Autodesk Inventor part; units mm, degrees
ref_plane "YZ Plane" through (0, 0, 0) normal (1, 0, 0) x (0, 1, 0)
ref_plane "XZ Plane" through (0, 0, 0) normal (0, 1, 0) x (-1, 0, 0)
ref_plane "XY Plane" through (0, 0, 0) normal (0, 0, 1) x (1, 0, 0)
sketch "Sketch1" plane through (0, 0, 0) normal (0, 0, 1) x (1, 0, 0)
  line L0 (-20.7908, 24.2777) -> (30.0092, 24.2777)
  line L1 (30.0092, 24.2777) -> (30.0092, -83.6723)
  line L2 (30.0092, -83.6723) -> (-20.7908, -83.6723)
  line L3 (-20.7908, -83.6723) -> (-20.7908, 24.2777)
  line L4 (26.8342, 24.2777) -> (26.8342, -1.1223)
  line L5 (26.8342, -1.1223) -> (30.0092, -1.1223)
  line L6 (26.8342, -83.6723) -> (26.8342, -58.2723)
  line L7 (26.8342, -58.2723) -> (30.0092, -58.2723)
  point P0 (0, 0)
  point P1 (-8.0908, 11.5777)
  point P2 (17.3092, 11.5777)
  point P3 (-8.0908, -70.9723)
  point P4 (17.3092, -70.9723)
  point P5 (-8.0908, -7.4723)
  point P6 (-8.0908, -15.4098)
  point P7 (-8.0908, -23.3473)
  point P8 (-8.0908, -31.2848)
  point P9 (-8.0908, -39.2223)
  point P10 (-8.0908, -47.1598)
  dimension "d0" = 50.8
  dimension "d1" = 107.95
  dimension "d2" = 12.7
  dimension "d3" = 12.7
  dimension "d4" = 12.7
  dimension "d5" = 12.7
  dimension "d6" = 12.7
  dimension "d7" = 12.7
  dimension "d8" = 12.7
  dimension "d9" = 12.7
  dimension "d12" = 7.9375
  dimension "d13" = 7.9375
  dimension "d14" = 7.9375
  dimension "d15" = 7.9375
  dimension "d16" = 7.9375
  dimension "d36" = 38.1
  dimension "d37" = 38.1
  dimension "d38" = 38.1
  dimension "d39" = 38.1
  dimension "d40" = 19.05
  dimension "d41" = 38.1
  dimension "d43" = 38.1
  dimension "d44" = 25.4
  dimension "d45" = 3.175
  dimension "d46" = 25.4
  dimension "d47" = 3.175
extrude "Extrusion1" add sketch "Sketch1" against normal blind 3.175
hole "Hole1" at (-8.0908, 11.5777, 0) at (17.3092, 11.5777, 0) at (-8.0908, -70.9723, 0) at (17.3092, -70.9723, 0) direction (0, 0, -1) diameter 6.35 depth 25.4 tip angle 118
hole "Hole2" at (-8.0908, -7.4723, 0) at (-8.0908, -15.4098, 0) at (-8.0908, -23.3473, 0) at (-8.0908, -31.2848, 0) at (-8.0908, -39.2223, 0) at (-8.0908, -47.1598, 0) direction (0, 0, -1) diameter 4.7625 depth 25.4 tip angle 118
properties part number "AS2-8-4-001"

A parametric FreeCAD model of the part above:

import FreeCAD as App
import Part
import Sketcher

V = App.Vector
Q = App.Units.Quantity

doc = App.newDocument("Part")
body = doc.addObject("PartDesign::Body", "Body")

# Sketch on XY plane
sketch1 = doc.addObject("Sketcher::SketchObject", "Sketch")
body.addObject(sketch1)
sketch1.AttachmentSupport = (doc.XY_Plane, [""])
sketch1.MapMode = "FlatFace"
sketch1.addGeometry(Part.LineSegment(V(-21, 24, 0), V(-21, -84, 0)), False)
sketch1.addGeometry(Part.LineSegment(V(-21, -84, 0), V(30, -84, 0)), False)
sketch1.addGeometry(Part.LineSegment(V(30, -84, 0), V(30, 24, 0)), False)
sketch1.addGeometry(Part.LineSegment(V(30, 24, 0), V(-21, 24, 0)), False)
sketch1.addConstraint(Sketcher.Constraint("Coincident", 0, 2, 1, 1))
sketch1.addConstraint(Sketcher.Constraint("Coincident", 1, 2, 2, 1))
sketch1.addConstraint(Sketcher.Constraint("Coincident", 2, 2, 3, 1))
sketch1.addConstraint(Sketcher.Constraint("Coincident", 3, 2, 0, 1))
sketch1.addConstraint(Sketcher.Constraint("Vertical", 0))
sketch1.addConstraint(Sketcher.Constraint("Horizontal", 1))
sketch1.addConstraint(Sketcher.Constraint("Vertical", 2))
sketch1.addConstraint(Sketcher.Constraint("Horizontal", 3))
sketch1.addConstraint(Sketcher.Constraint("DistanceX", 1, 1, 1, 2, Q("2 in")))
sketch1.addConstraint(Sketcher.Constraint("DistanceY", 0, 2, 0, 1, Q("4.25 in")))
sketch1.addConstraint(Sketcher.Constraint("DistanceX", 0, 2, -1, 1, Q("20.7908 mm")))
sketch1.addConstraint(Sketcher.Constraint("DistanceY", 0, 2, -1, 1, Q("83.6723 mm")))
pad1 = doc.addObject("PartDesign::Pad", "Pad")
body.addObject(pad1)
pad1.Profile = sketch1
pad1.Length = Q("0.125 in")
pad1.Reversed = True

# Sketch on XY plane
sketch2 = doc.addObject("Sketcher::SketchObject", "Sketch001")
body.addObject(sketch2)
sketch2.AttachmentSupport = (doc.XY_Plane, [""])
sketch2.MapMode = "FlatFace"
sketch2.addGeometry(Part.Circle(V(-8.1, 11.6, 0), V(0, 0, 1), 3.2), False)
sketch2.addGeometry(Part.Circle(V(17.3, 11.6, 0), V(0, 0, 1), 3.2), False)
sketch2.addGeometry(Part.Circle(V(-8.1, -71, 0), V(0, 0, 1), 3.2), False)
sketch2.addGeometry(Part.Circle(V(17.3, -71, 0), V(0, 0, 1), 3.2), False)
sketch2.addConstraint(Sketcher.Constraint("Equal", 0, 1))
sketch2.addConstraint(Sketcher.Constraint("Equal", 1, 2))
sketch2.addConstraint(Sketcher.Constraint("Equal", 2, 3))
sketch2.addConstraint(Sketcher.Constraint("Horizontal", 0, 3, 1, 3))
sketch2.addConstraint(Sketcher.Constraint("Horizontal", 2, 3, 3, 3))
sketch2.addConstraint(Sketcher.Constraint("Vertical", 0, 3, 2, 3))
sketch2.addConstraint(Sketcher.Constraint("Vertical", 1, 3, 3, 3))
sketch2.addConstraint(Sketcher.Constraint("Diameter", 0, Q("0.25 in")))
sketch2.addConstraint(Sketcher.Constraint("DistanceX", 0, 3, 1, 3, Q("1 in")))
sketch2.addConstraint(Sketcher.Constraint("DistanceY", 2, 3, 0, 3, Q("3.25 in")))
sketch2.addConstraint(Sketcher.Constraint("DistanceX", 0, 3, -1, 1, Q("8.0908 mm")))
sketch2.addConstraint(Sketcher.Constraint("DistanceY", -1, 1, 0, 3, Q("11.5777 mm")))
doc.recompute()
hole = doc.addObject("PartDesign::Hole", "Hole")
body.addObject(hole)
hole.Profile = sketch2
hole.ThreadType = "None"
hole.Diameter = Q("0.25 in")
hole.DepthType = "Dimension"
hole.Depth = Q("1 in")
hole.DrillPoint = "Angled"
hole.DrillPointAngle = 118

# Sketch on XY plane
sketch3 = doc.addObject("Sketcher::SketchObject", "Sketch002")
body.addObject(sketch3)
sketch3.AttachmentSupport = (doc.XY_Plane, [""])
sketch3.MapMode = "FlatFace"
sketch3.addGeometry(Part.Circle(V(-8.1, -7.5, 0), V(0, 0, 1), 2.4), False)
sketch3.addGeometry(Part.Circle(V(-8.1, -15.4, 0), V(0, 0, 1), 2.4), False)
sketch3.addGeometry(Part.Circle(V(-8.1, -23.3, 0), V(0, 0, 1), 2.4), False)
sketch3.addGeometry(Part.Circle(V(-8.1, -31.3, 0), V(0, 0, 1), 2.4), False)
sketch3.addGeometry(Part.Circle(V(-8.1, -39.2, 0), V(0, 0, 1), 2.4), False)
sketch3.addGeometry(Part.Circle(V(-8.1, -47.2, 0), V(0, 0, 1), 2.4), False)
sketch3.addConstraint(Sketcher.Constraint("Equal", 0, 1))
sketch3.addConstraint(Sketcher.Constraint("Equal", 1, 2))
sketch3.addConstraint(Sketcher.Constraint("Equal", 2, 3))
sketch3.addConstraint(Sketcher.Constraint("Equal", 3, 4))
sketch3.addConstraint(Sketcher.Constraint("Equal", 4, 5))
sketch3.addConstraint(Sketcher.Constraint("Vertical", 0, 3, 1, 3))
sketch3.addConstraint(Sketcher.Constraint("Vertical", 1, 3, 2, 3))
sketch3.addConstraint(Sketcher.Constraint("Vertical", 2, 3, 3, 3))
sketch3.addConstraint(Sketcher.Constraint("Vertical", 3, 3, 4, 3))
sketch3.addConstraint(Sketcher.Constraint("Vertical", 4, 3, 5, 3))
sketch3.addConstraint(Sketcher.Constraint("Diameter", 0, Q("0.1875 in")))
sketch3.addConstraint(Sketcher.Constraint("DistanceY", 4, 3, 0, 3, Q("1.25 in")))
sketch3.addConstraint(Sketcher.Constraint("DistanceY", 5, 3, 1, 3, Q("1.25 in")))
sketch3.addConstraint(Sketcher.Constraint("DistanceY", 1, 3, 0, 3, Q("0.3125 in")))
sketch3.addConstraint(Sketcher.Constraint("DistanceY", 2, 3, 1, 3, Q("0.3125 in")))
sketch3.addConstraint(Sketcher.Constraint("DistanceY", 3, 3, 2, 3, Q("0.3125 in")))
sketch3.addConstraint(Sketcher.Constraint("DistanceX", 0, 3, -1, 1, Q("8.0908 mm")))
sketch3.addConstraint(Sketcher.Constraint("DistanceY", 0, 3, -1, 1, Q("7.4723 mm")))
doc.recompute()
hole2 = doc.addObject("PartDesign::Hole", "Hole001")
body.addObject(hole2)
hole2.Profile = sketch3
hole2.ThreadType = "None"
hole2.Diameter = Q("0.1875 in")
hole2.DepthType = "Dimension"
hole2.Depth = Q("1 in")
hole2.DrillPoint = "Angled"
hole2.DrillPointAngle = 118

doc.recompute()
